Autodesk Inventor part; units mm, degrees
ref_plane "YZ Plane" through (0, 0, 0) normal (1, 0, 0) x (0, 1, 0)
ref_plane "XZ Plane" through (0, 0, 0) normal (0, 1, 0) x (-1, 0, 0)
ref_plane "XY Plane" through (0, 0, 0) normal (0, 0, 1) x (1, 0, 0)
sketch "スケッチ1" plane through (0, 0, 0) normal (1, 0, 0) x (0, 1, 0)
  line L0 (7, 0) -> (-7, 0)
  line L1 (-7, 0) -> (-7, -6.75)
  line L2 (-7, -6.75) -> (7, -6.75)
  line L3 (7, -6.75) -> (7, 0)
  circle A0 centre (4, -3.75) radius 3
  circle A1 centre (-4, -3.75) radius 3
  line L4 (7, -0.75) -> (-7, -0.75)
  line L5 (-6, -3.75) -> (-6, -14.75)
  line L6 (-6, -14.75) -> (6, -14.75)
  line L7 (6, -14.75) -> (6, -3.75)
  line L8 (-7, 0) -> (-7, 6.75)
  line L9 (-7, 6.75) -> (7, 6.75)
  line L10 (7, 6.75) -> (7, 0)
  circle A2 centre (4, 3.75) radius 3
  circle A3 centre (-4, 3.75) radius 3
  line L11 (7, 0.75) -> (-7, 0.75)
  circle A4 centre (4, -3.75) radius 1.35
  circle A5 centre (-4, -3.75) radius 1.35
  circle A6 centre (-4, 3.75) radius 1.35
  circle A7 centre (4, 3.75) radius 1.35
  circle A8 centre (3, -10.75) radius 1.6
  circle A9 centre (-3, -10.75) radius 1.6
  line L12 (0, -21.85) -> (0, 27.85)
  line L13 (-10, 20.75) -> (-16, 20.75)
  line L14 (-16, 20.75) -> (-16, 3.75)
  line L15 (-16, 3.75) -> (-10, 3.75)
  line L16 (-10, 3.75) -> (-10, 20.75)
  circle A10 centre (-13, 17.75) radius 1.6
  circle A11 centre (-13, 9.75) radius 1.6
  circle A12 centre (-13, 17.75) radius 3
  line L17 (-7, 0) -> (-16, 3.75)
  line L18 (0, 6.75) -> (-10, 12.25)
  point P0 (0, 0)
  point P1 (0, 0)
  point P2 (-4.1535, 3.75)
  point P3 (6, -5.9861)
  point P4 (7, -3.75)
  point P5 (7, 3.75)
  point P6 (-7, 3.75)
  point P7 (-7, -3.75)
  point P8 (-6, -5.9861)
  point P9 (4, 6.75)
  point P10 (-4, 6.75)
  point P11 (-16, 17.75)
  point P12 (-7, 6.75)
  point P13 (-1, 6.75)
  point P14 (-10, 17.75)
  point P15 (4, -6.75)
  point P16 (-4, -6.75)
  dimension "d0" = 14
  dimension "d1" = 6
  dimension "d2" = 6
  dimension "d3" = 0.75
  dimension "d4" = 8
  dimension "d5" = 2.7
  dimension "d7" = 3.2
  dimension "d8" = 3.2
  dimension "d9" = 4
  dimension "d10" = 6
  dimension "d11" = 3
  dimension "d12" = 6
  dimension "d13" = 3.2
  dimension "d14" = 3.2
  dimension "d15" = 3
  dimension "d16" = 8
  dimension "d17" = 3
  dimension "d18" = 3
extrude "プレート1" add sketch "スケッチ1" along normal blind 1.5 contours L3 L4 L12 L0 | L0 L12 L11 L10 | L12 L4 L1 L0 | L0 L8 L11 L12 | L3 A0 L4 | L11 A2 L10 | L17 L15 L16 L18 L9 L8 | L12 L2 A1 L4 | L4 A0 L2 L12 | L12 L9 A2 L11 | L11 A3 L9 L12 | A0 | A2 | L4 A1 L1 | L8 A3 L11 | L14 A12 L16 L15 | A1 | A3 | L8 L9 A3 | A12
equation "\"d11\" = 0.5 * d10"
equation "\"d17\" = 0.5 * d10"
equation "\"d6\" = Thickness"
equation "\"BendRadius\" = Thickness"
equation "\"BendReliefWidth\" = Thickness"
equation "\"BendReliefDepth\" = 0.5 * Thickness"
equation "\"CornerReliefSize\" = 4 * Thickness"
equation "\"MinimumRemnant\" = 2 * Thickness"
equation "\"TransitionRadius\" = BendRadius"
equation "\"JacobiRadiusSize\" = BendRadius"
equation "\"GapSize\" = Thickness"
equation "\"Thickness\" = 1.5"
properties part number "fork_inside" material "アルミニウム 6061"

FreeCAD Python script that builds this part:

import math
import FreeCAD as App
import Part
import Sketcher

doc = App.newDocument("Part")
params = doc.addObject("Spreadsheet::Sheet", "Params")
for row, (alias, value) in enumerate([
    ("sketch1_radius", "3 mm"),
    ("sketch1_diameter", "2.7 mm"),
    ("sketch1_diameter2", "3.2 mm"),
    ("sketch1_width", "4 mm"),
    ("sketch1_height", "14 mm"),
    ("pad1_length", "1.5 mm"),
], start=1):
    params.set(f"A{row}", alias)
    params.set(f"B{row}", "=" + value)
    params.setAlias(f"B{row}", alias)

body = doc.addObject("PartDesign::Body", "Body")

sketch1 = body.newObject("Sketcher::SketchObject", "Sketch")
sketch1.AttachmentSupport = (doc.getObject("YZ_Plane"), [""])
sketch1.MapMode = "FlatFace"
sketch1.addGeometry([
    Part.ArcOfCircle(Part.Circle(App.Vector(4, 3.75, 0), App.Vector(0, 0, 1), 3), math.radians(0), math.radians(90)),
    Part.LineSegment(App.Vector(4, 6.75, 0), App.Vector(0, 6.75, 0)),
    Part.LineSegment(App.Vector(0, 6.75, 0), App.Vector(-10, 12.25, 0)),
    Part.LineSegment(App.Vector(-10, 12.25, 0), App.Vector(-10, 17.75, 0)),
    Part.ArcOfCircle(Part.Circle(App.Vector(-13, 17.75, 0), App.Vector(0, 0, 1), 3), math.radians(0), math.radians(180)),
    Part.LineSegment(App.Vector(-16, 17.75, 0), App.Vector(-16, 3.75, 0)),
    Part.LineSegment(App.Vector(-16, 3.75, 0), App.Vector(-7, 0, 0)),
    Part.LineSegment(App.Vector(-7, 0, 0), App.Vector(-7, -3.75, 0)),
    Part.ArcOfCircle(Part.Circle(App.Vector(-4, -3.75, 0), App.Vector(0, 0, 1), 3), math.radians(180), math.radians(270)),
    Part.LineSegment(App.Vector(-4, -6.75, 0), App.Vector(4, -6.75, 0)),
    Part.ArcOfCircle(Part.Circle(App.Vector(4, -3.75, 0), App.Vector(0, 0, 1), 3), math.radians(-90), math.radians(0)),
    Part.LineSegment(App.Vector(7, -3.75, 0), App.Vector(7, 3.75, 0)),
    Part.Circle(App.Vector(4, -3.75, 0), App.Vector(0, 0, 1), 1.35),
    Part.Circle(App.Vector(-4, -3.75, 0), App.Vector(0, 0, 1), 1.35),
    Part.Circle(App.Vector(4, 3.75, 0), App.Vector(0, 0, 1), 1.35),
    Part.Circle(App.Vector(-4, 3.75, 0), App.Vector(0, 0, 1), 1.35),
    Part.Circle(App.Vector(-13, 9.75, 0), App.Vector(0, 0, 1), 1.6),
    Part.Circle(App.Vector(-13, 17.75, 0), App.Vector(0, 0, 1), 1.6),
], False)
sketch1.addConstraint([
    Sketcher.Constraint("Tangent", 0, 2, 1, 1),
    Sketcher.Constraint("Coincident", 1, 2, 2, 1),
    Sketcher.Constraint("Coincident", 2, 2, 3, 1),
    Sketcher.Constraint("Tangent", 3, 2, 4, 1),
    Sketcher.Constraint("Tangent", 4, 2, 5, 1),
    Sketcher.Constraint("Coincident", 5, 2, 6, 1),
    Sketcher.Constraint("Coincident", 6, 2, 7, 1),
    Sketcher.Constraint("Tangent", 7, 2, 8, 1),
    Sketcher.Constraint("Tangent", 8, 2, 9, 1),
    Sketcher.Constraint("Tangent", 9, 2, 10, 1),
    Sketcher.Constraint("Tangent", 10, 2, 11, 1),
    Sketcher.Constraint("Tangent", 11, 2, 0, 1),
    Sketcher.Constraint("Horizontal", 1),
    Sketcher.Constraint("Vertical", 3),
    Sketcher.Constraint("Vertical", 5),
    Sketcher.Constraint("Vertical", 7),
    Sketcher.Constraint("Horizontal", 9),
    Sketcher.Constraint("Vertical", 11),
    Sketcher.Constraint("Coincident", 12, 3, 10, 3),
    Sketcher.Constraint("Coincident", 13, 3, 8, 3),
    Sketcher.Constraint("Coincident", 14, 3, 0, 3),
    Sketcher.Constraint("Coincident", 17, 3, 4, 3),
    Sketcher.Constraint("Equal", 0, 4),
    Sketcher.Constraint("Equal", 4, 8),
    Sketcher.Constraint("Equal", 8, 10),
    Sketcher.Constraint("Equal", 12, 13),
    Sketcher.Constraint("Equal", 13, 14),
    Sketcher.Constraint("Equal", 14, 15),
    Sketcher.Constraint("Equal", 16, 17),
    Sketcher.Constraint("Symmetric", 0, 3, 8, 3, -1, 1),
    Sketcher.Constraint("Symmetric", 10, 3, 15, 3, -1, 1),
    Sketcher.Constraint("PointOnObject", 1, 2, -2),
    Sketcher.Constraint("PointOnObject", 6, 2, -1),
    Sketcher.Constraint("Horizontal", 15, 3, 5, 2),
    Sketcher.Constraint("Vertical", 4, 3, 16, 3),
    Sketcher.Constraint("Radius", 0, 3.0),
    Sketcher.Constraint("Diameter", 12, 2.7),
    Sketcher.Constraint("Diameter", 16, 3.2),
    Sketcher.Constraint("DistanceX", 1, 2, 1, 1, 4.0),
    Sketcher.Constraint("DistanceY", 5, 2, 5, 1, 14.0),
    Sketcher.Constraint("DistanceY", 16, 3, 4, 3, 8.0),
    Sketcher.Constraint("DistanceX", 2, 2, 15, 3, 6.0),
    Sketcher.Constraint("DistanceY", 3, 1, 3, 2, 5.5),
    Sketcher.Constraint("DistanceY", 11, 1, 11, 2, 7.5),
])
sketch1.setExpression("Constraints[35]", "Params.sketch1_radius")
sketch1.setExpression("Constraints[36]", "Params.sketch1_diameter")
sketch1.setExpression("Constraints[37]", "Params.sketch1_diameter2")
sketch1.setExpression("Constraints[38]", "Params.sketch1_width")
sketch1.setExpression("Constraints[39]", "Params.sketch1_height")
pad1 = body.newObject("PartDesign::Pad", "Pad")
pad1.Profile = sketch1
pad1.setExpression("Length", "Params.pad1_length")

doc.recompute()
